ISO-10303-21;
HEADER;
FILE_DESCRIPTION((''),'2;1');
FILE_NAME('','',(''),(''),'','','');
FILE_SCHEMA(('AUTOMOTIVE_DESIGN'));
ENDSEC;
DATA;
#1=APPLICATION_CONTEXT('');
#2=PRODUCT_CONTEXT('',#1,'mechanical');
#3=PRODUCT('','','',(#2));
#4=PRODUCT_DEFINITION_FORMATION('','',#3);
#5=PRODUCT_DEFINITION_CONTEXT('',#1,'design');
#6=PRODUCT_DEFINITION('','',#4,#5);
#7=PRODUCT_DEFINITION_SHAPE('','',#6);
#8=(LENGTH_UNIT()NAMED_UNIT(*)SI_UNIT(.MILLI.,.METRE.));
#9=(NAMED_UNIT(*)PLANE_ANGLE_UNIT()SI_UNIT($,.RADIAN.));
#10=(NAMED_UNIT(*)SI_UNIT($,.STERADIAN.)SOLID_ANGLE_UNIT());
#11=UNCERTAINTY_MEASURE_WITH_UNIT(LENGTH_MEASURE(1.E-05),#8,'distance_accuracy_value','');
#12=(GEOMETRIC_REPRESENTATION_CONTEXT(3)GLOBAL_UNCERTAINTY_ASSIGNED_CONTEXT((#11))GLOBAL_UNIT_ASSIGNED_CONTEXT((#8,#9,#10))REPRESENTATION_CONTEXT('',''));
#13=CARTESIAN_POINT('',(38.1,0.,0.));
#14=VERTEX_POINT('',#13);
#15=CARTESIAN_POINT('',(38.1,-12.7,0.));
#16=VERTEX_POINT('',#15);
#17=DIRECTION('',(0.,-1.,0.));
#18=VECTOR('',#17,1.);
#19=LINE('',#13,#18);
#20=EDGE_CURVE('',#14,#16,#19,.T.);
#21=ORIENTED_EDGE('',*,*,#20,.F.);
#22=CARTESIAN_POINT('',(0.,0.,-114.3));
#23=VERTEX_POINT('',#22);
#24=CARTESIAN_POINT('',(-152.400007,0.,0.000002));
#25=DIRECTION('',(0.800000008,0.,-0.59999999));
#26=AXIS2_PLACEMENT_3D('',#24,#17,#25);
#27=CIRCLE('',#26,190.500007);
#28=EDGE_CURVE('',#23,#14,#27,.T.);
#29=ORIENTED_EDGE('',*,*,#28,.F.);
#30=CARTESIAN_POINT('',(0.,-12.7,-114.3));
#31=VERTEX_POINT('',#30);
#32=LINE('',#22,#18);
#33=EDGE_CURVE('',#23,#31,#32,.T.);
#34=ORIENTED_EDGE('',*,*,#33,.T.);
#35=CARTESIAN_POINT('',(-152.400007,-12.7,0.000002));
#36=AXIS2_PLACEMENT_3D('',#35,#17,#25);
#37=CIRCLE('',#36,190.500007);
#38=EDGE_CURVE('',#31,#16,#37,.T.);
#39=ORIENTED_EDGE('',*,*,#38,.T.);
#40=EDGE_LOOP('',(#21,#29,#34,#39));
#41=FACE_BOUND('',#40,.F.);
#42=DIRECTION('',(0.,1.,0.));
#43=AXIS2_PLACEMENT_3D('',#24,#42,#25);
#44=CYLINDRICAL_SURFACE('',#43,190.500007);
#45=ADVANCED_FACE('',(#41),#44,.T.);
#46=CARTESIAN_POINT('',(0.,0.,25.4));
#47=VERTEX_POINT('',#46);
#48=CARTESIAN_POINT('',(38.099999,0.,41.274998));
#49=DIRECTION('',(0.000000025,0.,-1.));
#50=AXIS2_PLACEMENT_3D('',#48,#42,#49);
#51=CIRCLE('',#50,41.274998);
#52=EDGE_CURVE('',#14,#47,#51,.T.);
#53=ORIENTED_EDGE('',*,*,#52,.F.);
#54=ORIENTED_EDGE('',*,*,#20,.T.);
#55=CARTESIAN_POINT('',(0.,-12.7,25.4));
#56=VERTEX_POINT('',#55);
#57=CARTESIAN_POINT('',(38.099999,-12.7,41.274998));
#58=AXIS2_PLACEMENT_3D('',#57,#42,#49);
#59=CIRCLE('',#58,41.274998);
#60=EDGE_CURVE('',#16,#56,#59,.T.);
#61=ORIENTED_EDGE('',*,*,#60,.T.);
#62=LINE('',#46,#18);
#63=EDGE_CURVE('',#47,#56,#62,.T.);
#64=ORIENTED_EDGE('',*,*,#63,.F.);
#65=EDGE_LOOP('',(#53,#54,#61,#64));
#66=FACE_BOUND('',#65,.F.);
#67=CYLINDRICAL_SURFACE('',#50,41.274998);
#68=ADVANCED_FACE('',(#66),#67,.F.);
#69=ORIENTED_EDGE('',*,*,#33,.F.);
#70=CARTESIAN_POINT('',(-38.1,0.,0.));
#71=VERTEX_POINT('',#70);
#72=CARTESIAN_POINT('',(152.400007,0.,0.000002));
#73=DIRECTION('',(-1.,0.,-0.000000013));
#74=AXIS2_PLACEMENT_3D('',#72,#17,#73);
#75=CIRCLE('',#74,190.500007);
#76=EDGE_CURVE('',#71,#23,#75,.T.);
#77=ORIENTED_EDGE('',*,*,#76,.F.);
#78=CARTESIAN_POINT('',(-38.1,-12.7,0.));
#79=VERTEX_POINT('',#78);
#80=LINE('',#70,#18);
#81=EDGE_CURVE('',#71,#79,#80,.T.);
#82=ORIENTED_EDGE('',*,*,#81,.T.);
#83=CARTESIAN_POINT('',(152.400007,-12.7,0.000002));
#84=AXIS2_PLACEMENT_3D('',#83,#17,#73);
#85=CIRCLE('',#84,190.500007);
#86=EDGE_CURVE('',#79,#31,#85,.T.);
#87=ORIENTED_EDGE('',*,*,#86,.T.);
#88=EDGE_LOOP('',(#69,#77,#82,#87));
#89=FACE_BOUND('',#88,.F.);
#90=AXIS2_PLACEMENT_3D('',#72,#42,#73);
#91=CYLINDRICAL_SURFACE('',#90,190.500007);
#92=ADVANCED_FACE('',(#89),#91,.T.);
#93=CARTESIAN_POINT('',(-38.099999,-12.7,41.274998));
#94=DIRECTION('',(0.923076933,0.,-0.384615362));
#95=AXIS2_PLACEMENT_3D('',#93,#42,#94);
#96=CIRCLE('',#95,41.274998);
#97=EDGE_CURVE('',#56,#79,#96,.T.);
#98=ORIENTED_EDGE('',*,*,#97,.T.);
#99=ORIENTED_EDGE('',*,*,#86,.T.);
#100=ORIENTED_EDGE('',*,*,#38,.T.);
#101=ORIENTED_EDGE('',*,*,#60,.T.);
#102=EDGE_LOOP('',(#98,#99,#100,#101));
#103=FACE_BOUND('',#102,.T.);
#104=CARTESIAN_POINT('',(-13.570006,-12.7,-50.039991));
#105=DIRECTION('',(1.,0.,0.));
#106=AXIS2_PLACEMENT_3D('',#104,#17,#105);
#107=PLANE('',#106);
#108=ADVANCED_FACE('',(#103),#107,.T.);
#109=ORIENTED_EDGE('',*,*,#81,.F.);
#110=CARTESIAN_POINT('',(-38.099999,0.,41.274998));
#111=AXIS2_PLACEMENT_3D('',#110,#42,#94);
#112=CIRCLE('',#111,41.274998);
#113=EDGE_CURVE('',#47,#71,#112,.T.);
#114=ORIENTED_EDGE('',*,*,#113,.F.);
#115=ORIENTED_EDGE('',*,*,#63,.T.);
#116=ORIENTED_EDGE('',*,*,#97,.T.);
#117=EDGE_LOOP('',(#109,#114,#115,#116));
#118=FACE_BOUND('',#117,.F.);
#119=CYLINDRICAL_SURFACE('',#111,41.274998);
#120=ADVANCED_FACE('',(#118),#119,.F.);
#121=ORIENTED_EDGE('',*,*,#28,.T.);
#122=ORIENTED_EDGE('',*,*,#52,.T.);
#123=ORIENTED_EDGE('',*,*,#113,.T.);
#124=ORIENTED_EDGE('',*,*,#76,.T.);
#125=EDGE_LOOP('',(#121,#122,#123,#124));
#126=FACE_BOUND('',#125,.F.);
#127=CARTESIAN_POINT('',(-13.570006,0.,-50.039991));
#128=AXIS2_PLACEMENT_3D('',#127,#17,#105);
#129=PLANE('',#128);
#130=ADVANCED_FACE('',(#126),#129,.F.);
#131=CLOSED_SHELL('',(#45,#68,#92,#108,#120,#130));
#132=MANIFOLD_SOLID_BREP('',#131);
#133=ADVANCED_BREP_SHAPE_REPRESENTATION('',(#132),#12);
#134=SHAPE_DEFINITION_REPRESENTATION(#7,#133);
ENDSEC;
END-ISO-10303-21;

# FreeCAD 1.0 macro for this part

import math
import FreeCAD as App
import Part
import Sketcher

V = App.Vector
Q = App.Units.Quantity

doc = App.newDocument("Part")
body = doc.addObject("PartDesign::Body", "Body")

sketch1 = body.newObject("Sketcher::SketchObject", "Sketch")
sketch1.AttachmentSupport = (doc.getObject("XZ_Plane"), [""])
sketch1.MapMode = "FlatFace"
sketch1.addGeometry([
    Part.ArcOfCircle(Part.Circle(V(152, 0, 0), V(0, 0, 1), 191), math.radians(-180), math.radians(-143)),
    Part.ArcOfCircle(Part.Circle(V(-152, 0, 0), V(0, 0, 1), 191), math.radians(-37), math.radians(0)),
    Part.ArcOfCircle(Part.Circle(V(38, 41, 0), V(0, 0, 1), 41), math.radians(-157), math.radians(-90)),
    Part.ArcOfCircle(Part.Circle(V(-38, 41, 0), V(0, 0, 1), 41), math.radians(-90), math.radians(-23)),
], False)
sketch1.addConstraint([
    Sketcher.Constraint("Coincident", 0, 2, 1, 1),
    Sketcher.Constraint("Coincident", 1, 2, 2, 2),
    Sketcher.Constraint("Coincident", 2, 1, 3, 2),
    Sketcher.Constraint("Coincident", 3, 1, 0, 1),
    Sketcher.Constraint("Equal", 0, 1),
    Sketcher.Constraint("Equal", 2, 3),
    Sketcher.Constraint("Symmetric", 0, 3, 1, 3, -1, 1),
    Sketcher.Constraint("Symmetric", 2, 3, 3, 3, -2),
    Sketcher.Constraint("PointOnObject", 0, 2, -2),
    Sketcher.Constraint("PointOnObject", 1, 2, -1),
    Sketcher.Constraint("Vertical", 2, 3, 1, 2),
    Sketcher.Constraint("DistanceY", -1, 1, 2, 1, Q("1 in")),
    Sketcher.Constraint("Radius", 2, Q("1.6249999 in")),
    Sketcher.Constraint("Radius", 0, Q("190.500007 mm")),
])
pad1 = body.newObject("PartDesign::Pad", "Pad")
pad1.Profile = sketch1
pad1.Length = Q("0.5 in")

doc.recompute()
